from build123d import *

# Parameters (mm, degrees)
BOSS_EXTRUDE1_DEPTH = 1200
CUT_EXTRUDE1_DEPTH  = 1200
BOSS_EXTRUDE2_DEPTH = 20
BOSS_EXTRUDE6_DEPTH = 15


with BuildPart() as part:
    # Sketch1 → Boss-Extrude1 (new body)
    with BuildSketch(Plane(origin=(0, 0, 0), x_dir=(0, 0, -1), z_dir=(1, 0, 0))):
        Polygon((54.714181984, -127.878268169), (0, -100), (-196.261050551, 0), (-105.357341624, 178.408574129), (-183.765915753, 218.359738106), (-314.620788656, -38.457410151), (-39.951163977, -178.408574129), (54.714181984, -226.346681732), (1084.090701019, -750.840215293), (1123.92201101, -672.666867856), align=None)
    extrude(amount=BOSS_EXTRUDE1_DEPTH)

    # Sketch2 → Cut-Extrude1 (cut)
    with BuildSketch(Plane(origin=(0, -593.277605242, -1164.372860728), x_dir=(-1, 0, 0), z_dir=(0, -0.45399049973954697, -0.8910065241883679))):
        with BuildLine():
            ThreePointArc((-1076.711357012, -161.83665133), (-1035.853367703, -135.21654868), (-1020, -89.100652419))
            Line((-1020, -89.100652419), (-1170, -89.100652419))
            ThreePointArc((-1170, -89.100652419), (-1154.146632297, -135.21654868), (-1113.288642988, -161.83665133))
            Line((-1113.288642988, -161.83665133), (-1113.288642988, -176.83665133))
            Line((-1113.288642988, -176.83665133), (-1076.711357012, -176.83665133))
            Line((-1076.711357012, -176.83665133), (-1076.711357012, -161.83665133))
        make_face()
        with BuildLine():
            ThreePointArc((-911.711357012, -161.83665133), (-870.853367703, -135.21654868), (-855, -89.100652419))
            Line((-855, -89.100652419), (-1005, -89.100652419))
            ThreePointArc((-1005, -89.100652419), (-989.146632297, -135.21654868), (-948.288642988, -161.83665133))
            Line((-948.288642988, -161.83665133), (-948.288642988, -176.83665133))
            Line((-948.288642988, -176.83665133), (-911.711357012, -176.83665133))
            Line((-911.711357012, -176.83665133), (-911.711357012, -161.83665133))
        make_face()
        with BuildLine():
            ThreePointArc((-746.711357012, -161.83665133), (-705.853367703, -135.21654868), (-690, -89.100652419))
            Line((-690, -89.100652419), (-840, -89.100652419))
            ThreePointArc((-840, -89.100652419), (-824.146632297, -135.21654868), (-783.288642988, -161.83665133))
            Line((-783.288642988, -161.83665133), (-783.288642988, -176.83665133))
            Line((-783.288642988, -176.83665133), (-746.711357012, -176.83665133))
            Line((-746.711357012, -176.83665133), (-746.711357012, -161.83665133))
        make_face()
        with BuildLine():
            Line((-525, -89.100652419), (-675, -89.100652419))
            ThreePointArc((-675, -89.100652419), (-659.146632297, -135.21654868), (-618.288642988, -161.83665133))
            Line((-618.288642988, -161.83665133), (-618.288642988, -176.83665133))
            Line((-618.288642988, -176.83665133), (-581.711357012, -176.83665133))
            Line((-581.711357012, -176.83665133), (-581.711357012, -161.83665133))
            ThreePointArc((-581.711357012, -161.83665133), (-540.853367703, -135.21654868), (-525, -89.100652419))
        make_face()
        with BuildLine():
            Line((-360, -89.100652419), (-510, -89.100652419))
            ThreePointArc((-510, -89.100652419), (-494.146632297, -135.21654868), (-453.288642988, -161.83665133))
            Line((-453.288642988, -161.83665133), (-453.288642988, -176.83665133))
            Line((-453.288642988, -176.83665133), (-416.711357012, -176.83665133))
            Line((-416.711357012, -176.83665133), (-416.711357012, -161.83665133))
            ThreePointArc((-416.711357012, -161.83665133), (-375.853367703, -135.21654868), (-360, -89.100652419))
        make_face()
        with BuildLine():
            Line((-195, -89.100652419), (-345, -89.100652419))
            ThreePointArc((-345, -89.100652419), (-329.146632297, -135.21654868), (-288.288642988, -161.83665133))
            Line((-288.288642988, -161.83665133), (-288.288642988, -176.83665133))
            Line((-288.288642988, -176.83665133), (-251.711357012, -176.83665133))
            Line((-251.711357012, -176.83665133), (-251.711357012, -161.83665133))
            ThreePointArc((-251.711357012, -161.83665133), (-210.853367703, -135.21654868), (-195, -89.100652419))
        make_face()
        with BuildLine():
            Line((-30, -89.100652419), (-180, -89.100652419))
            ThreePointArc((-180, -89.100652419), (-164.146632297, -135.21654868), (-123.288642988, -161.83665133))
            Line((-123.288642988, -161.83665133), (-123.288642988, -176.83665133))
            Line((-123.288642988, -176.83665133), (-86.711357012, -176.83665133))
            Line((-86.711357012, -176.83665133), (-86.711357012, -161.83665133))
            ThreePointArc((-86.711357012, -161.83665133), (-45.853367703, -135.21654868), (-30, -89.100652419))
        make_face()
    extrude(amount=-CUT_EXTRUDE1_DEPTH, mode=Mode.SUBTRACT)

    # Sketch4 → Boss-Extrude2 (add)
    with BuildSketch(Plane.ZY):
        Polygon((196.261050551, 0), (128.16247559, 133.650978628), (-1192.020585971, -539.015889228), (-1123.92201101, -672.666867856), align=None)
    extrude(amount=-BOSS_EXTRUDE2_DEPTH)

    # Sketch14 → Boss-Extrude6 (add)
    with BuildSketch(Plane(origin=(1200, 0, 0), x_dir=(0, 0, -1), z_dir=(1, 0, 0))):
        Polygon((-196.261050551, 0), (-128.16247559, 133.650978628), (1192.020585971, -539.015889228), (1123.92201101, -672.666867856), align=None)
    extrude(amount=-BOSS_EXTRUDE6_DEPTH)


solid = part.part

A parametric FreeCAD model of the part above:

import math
import FreeCAD as App
import Part
import Sketcher
from FreeCAD import Vector
Q = App.Units.Quantity


def add_polygon(sketch, points):
    """Adds a closed chain of lines whose ends are joined by coincident constraints."""
    first, n = sketch.GeometryCount, len(points)
    for a, b in zip(points, points[1:] + points[:1]):
        sketch.addGeometry(Part.LineSegment(App.Vector(*a, 0), App.Vector(*b, 0)), False)
    for i in range(n):
        sketch.addConstraint(Sketcher.Constraint("Coincident", first + i, 2, first + (i + 1) % n, 1))

doc = App.newDocument("Part")
body = doc.addObject("PartDesign::Body", "Body")

# Sketch on YZ plane
sketch1 = body.newObject("Sketcher::SketchObject", "Sketch")
sketch1.AttachmentSupport = (doc.getObject("YZ_Plane"), [""])
sketch1.MapMode = "FlatFace"
add_polygon(sketch1, [(-128, -55), (0, 196), (178, 105), (218, 184), (-38, 315), (-178, 40), (-226, -55), (-751, -1084), (-673, -1124)])  # lines 0-8
sketch1.addConstraint(Sketcher.Constraint("PointOnObject", 0, 2, -2))
sketch1.addConstraint(Sketcher.Constraint("Perpendicular", 0, 1))
sketch1.addConstraint(Sketcher.Constraint("Perpendicular", 1, 2))
sketch1.addConstraint(Sketcher.Constraint("Perpendicular", 2, 3))
sketch1.addConstraint(Sketcher.Constraint("Perpendicular", 3, 4))
sketch1.addConstraint(Sketcher.Constraint("Parallel", 4, 6))
sketch1.addConstraint(Sketcher.Constraint("Perpendicular", 6, 7))
sketch1.addConstraint(Sketcher.Constraint("Perpendicular", 7, 8))
sketch1.addConstraint(Sketcher.Constraint("Horizontal", 5, 2, 8, 2))
sketch1.addConstraint(Sketcher.Constraint("Angle", 0, Q("63 deg")))
sketch1.addConstraint(Sketcher.Constraint("Distance", 2, Q("88 mm")))
sketch1.addConstraint(Sketcher.Constraint("Distance", 8, Q("1200 mm")))
sketch1.addConstraint(Sketcher.Constraint("Distance", 7, Q("87.735999 mm")))
sketch1.addConstraint(Sketcher.Constraint("DistanceY", 6, 2, -1, 1, Q("1084.090701 mm")))
sketch1.addConstraint(Sketcher.Constraint("Distance", 0, Q("281.676088 mm")))
sketch1.addConstraint(Sketcher.Constraint("DistanceY", -1, 1, 1, 2, Q("105.357342 mm")))
sketch1.addConstraint(Sketcher.Constraint("DistanceX", 3, 2, -1, 1, Q("38.45741 mm")))
sketch1.addConstraint(Sketcher.Constraint("DistanceX", 4, 2, 1, 2, Q("356.817148 mm")))
pad1 = body.newObject("PartDesign::Pad", "Pad")
pad1.Profile = sketch1
pad1.Length = 1200

# Sketch on an angled plane
sketch2 = body.newObject("Sketcher::SketchObject", "Sketch001")
sketch2.Placement = App.Placement(Vector(0, -593.277605, -1164.372861), App.Rotation(Vector(-1, 0, 0), Vector(0, 0.891006524, -0.4539905), Vector(0, -0.4539905, -0.891006524), "ZXY"))
sketch2.addGeometry(Part.ArcOfCircle(Part.Circle(Vector(-1095, -89, 0), Vector(0, 0, 1), 75), math.radians(-76), math.radians(0)), False)
sketch2.addGeometry(Part.LineSegment(Vector(-1020, -89, 0), Vector(-1170, -89, 0)), False)
sketch2.addGeometry(Part.ArcOfCircle(Part.Circle(Vector(-1095, -89, 0), Vector(0, 0, 1), 75), math.radians(180), math.radians(256)), False)
sketch2.addGeometry(Part.LineSegment(Vector(-1113, -162, 0), Vector(-1113, -177, 0)), False)
sketch2.addGeometry(Part.LineSegment(Vector(-1113, -177, 0), Vector(-1077, -177, 0)), False)
sketch2.addGeometry(Part.LineSegment(Vector(-1077, -177, 0), Vector(-1077, -162, 0)), False)
sketch2.addGeometry(Part.ArcOfCircle(Part.Circle(Vector(-930, -89, 0), Vector(0, 0, 1), 75), math.radians(-76), math.radians(0)), False)
sketch2.addGeometry(Part.LineSegment(Vector(-855, -89, 0), Vector(-1005, -89, 0)), False)
sketch2.addGeometry(Part.ArcOfCircle(Part.Circle(Vector(-930, -89, 0), Vector(0, 0, 1), 75), math.radians(180), math.radians(256)), False)
sketch2.addGeometry(Part.LineSegment(Vector(-948, -162, 0), Vector(-948, -177, 0)), False)
sketch2.addGeometry(Part.LineSegment(Vector(-948, -177, 0), Vector(-912, -177, 0)), False)
sketch2.addGeometry(Part.LineSegment(Vector(-912, -177, 0), Vector(-912, -162, 0)), False)
sketch2.addGeometry(Part.ArcOfCircle(Part.Circle(Vector(-765, -89, 0), Vector(0, 0, 1), 75), math.radians(-76), math.radians(0)), False)
sketch2.addGeometry(Part.LineSegment(Vector(-690, -89, 0), Vector(-840, -89, 0)), False)
sketch2.addGeometry(Part.ArcOfCircle(Part.Circle(Vector(-765, -89, 0), Vector(0, 0, 1), 75), math.radians(180), math.radians(256)), False)
sketch2.addGeometry(Part.LineSegment(Vector(-783, -162, 0), Vector(-783, -177, 0)), False)
sketch2.addGeometry(Part.LineSegment(Vector(-783, -177, 0), Vector(-747, -177, 0)), False)
sketch2.addGeometry(Part.LineSegment(Vector(-747, -177, 0), Vector(-747, -162, 0)), False)
sketch2.addGeometry(Part.LineSegment(Vector(-525, -89, 0), Vector(-675, -89, 0)), False)
sketch2.addGeometry(Part.ArcOfCircle(Part.Circle(Vector(-600, -89, 0), Vector(0, 0, 1), 75), math.radians(180), math.radians(256)), False)
sketch2.addGeometry(Part.LineSegment(Vector(-618, -162, 0), Vector(-618, -177, 0)), False)
sketch2.addGeometry(Part.LineSegment(Vector(-618, -177, 0), Vector(-582, -177, 0)), False)
sketch2.addGeometry(Part.LineSegment(Vector(-582, -177, 0), Vector(-582, -162, 0)), False)
sketch2.addGeometry(Part.ArcOfCircle(Part.Circle(Vector(-600, -89, 0), Vector(0, 0, 1), 75), math.radians(-76), math.radians(0)), False)
sketch2.addGeometry(Part.LineSegment(Vector(-360, -89, 0), Vector(-510, -89, 0)), False)
sketch2.addGeometry(Part.ArcOfCircle(Part.Circle(Vector(-435, -89, 0), Vector(0, 0, 1), 75), math.radians(180), math.radians(256)), False)
sketch2.addGeometry(Part.LineSegment(Vector(-453, -162, 0), Vector(-453, -177, 0)), False)
sketch2.addGeometry(Part.LineSegment(Vector(-453, -177, 0), Vector(-417, -177, 0)), False)
sketch2.addGeometry(Part.LineSegment(Vector(-417, -177, 0), Vector(-417, -162, 0)), False)
sketch2.addGeometry(Part.ArcOfCircle(Part.Circle(Vector(-435, -89, 0), Vector(0, 0, 1), 75), math.radians(-76), math.radians(0)), False)
sketch2.addGeometry(Part.LineSegment(Vector(-195, -89, 0), Vector(-345, -89, 0)), False)
sketch2.addGeometry(Part.ArcOfCircle(Part.Circle(Vector(-270, -89, 0), Vector(0, 0, 1), 75), math.radians(180), math.radians(256)), False)
sketch2.addGeometry(Part.LineSegment(Vector(-288, -162, 0), Vector(-288, -177, 0)), False)
sketch2.addGeometry(Part.LineSegment(Vector(-288, -177, 0), Vector(-252, -177, 0)), False)
sketch2.addGeometry(Part.LineSegment(Vector(-252, -177, 0), Vector(-252, -162, 0)), False)
sketch2.addGeometry(Part.ArcOfCircle(Part.Circle(Vector(-270, -89, 0), Vector(0, 0, 1), 75), math.radians(-76), math.radians(0)), False)
sketch2.addGeometry(Part.LineSegment(Vector(-30, -89, 0), Vector(-180, -89, 0)), False)
sketch2.addGeometry(Part.ArcOfCircle(Part.Circle(Vector(-105, -89, 0), Vector(0, 0, 1), 75), math.radians(180), math.radians(256)), False)
sketch2.addGeometry(Part.LineSegment(Vector(-123, -162, 0), Vector(-123, -177, 0)), False)
sketch2.addGeometry(Part.LineSegment(Vector(-123, -177, 0), Vector(-87, -177, 0)), False)
sketch2.addGeometry(Part.LineSegment(Vector(-87, -177, 0), Vector(-87, -162, 0)), False)
sketch2.addGeometry(Part.ArcOfCircle(Part.Circle(Vector(-105, -89, 0), Vector(0, 0, 1), 75), math.radians(-76), math.radians(0)), False)
sketch2.addConstraint(Sketcher.Constraint("Coincident", 0, 2, 1, 1))
sketch2.addConstraint(Sketcher.Constraint("Coincident", 1, 2, 2, 1))
sketch2.addConstraint(Sketcher.Constraint("Coincident", 2, 2, 3, 1))
sketch2.addConstraint(Sketcher.Constraint("Coincident", 3, 2, 4, 1))
sketch2.addConstraint(Sketcher.Constraint("Coincident", 4, 2, 5, 1))
sketch2.addConstraint(Sketcher.Constraint("Coincident", 5, 2, 0, 1))
sketch2.addConstraint(Sketcher.Constraint("Coincident", 6, 2, 7, 1))
sketch2.addConstraint(Sketcher.Constraint("Coincident", 7, 2, 8, 1))
sketch2.addConstraint(Sketcher.Constraint("Coincident", 8, 2, 9, 1))
sketch2.addConstraint(Sketcher.Constraint("Coincident", 9, 2, 10, 1))
sketch2.addConstraint(Sketcher.Constraint("Coincident", 10, 2, 11, 1))
sketch2.addConstraint(Sketcher.Constraint("Coincident", 11, 2, 6, 1))
sketch2.addConstraint(Sketcher.Constraint("Coincident", 12, 2, 13, 1))
sketch2.addConstraint(Sketcher.Constraint("Coincident", 13, 2, 14, 1))
sketch2.addConstraint(Sketcher.Constraint("Coincident", 14, 2, 15, 1))
sketch2.addConstraint(Sketcher.Constraint("Coincident", 15, 2, 16, 1))
sketch2.addConstraint(Sketcher.Constraint("Coincident", 16, 2, 17, 1))
sketch2.addConstraint(Sketcher.Constraint("Coincident", 17, 2, 12, 1))
sketch2.addConstraint(Sketcher.Constraint("Coincident", 18, 2, 19, 1))
sketch2.addConstraint(Sketcher.Constraint("Coincident", 19, 2, 20, 1))
sketch2.addConstraint(Sketcher.Constraint("Coincident", 20, 2, 21, 1))
sketch2.addConstraint(Sketcher.Constraint("Coincident", 21, 2, 22, 1))
sketch2.addConstraint(Sketcher.Constraint("Coincident", 22, 2, 23, 1))
sketch2.addConstraint(Sketcher.Constraint("Coincident", 23, 2, 18, 1))
sketch2.addConstraint(Sketcher.Constraint("Coincident", 24, 2, 25, 1))
sketch2.addConstraint(Sketcher.Constraint("Coincident", 25, 2, 26, 1))
sketch2.addConstraint(Sketcher.Constraint("Coincident", 26, 2, 27, 1))
sketch2.addConstraint(Sketcher.Constraint("Coincident", 27, 2, 28, 1))
sketch2.addConstraint(Sketcher.Constraint("Coincident", 28, 2, 29, 1))
sketch2.addConstraint(Sketcher.Constraint("Coincident", 29, 2, 24, 1))
sketch2.addConstraint(Sketcher.Constraint("Coincident", 30, 2, 31, 1))
sketch2.addConstraint(Sketcher.Constraint("Coincident", 31, 2, 32, 1))
sketch2.addConstraint(Sketcher.Constraint("Coincident", 32, 2, 33, 1))
sketch2.addConstraint(Sketcher.Constraint("Coincident", 33, 2, 34, 1))
sketch2.addConstraint(Sketcher.Constraint("Coincident", 34, 2, 35, 1))
sketch2.addConstraint(Sketcher.Constraint("Coincident", 35, 2, 30, 1))
sketch2.addConstraint(Sketcher.Constraint("Coincident", 36, 2, 37, 1))
sketch2.addConstraint(Sketcher.Constraint("Coincident", 37, 2, 38, 1))
sketch2.addConstraint(Sketcher.Constraint("Coincident", 38, 2, 39, 1))
sketch2.addConstraint(Sketcher.Constraint("Coincident", 39, 2, 40, 1))
sketch2.addConstraint(Sketcher.Constraint("Coincident", 40, 2, 41, 1))
sketch2.addConstraint(Sketcher.Constraint("Coincident", 41, 2, 36, 1))
sketch2.addConstraint(Sketcher.Constraint("Horizontal", 1))
sketch2.addConstraint(Sketcher.Constraint("Vertical", 3))
sketch2.addConstraint(Sketcher.Constraint("Horizontal", 4))
sketch2.addConstraint(Sketcher.Constraint("Vertical", 5))
sketch2.addConstraint(Sketcher.Constraint("Horizontal", 7))
sketch2.addConstraint(Sketcher.Constraint("Vertical", 9))
sketch2.addConstraint(Sketcher.Constraint("Horizontal", 10))
sketch2.addConstraint(Sketcher.Constraint("Vertical", 11))
sketch2.addConstraint(Sketcher.Constraint("Horizontal", 13))
sketch2.addConstraint(Sketcher.Constraint("Vertical", 15))
sketch2.addConstraint(Sketcher.Constraint("Horizontal", 16))
sketch2.addConstraint(Sketcher.Constraint("Vertical", 17))
sketch2.addConstraint(Sketcher.Constraint("Horizontal", 18))
sketch2.addConstraint(Sketcher.Constraint("Vertical", 20))
sketch2.addConstraint(Sketcher.Constraint("Horizontal", 21))
sketch2.addConstraint(Sketcher.Constraint("Vertical", 22))
sketch2.addConstraint(Sketcher.Constraint("Horizontal", 24))
sketch2.addConstraint(Sketcher.Constraint("Vertical", 26))
sketch2.addConstraint(Sketcher.Constraint("Horizontal", 27))
sketch2.addConstraint(Sketcher.Constraint("Vertical", 28))
sketch2.addConstraint(Sketcher.Constraint("Horizontal", 30))
sketch2.addConstraint(Sketcher.Constraint("Vertical", 32))
sketch2.addConstraint(Sketcher.Constraint("Horizontal", 33))
sketch2.addConstraint(Sketcher.Constraint("Vertical", 34))
sketch2.addConstraint(Sketcher.Constraint("Horizontal", 36))
sketch2.addConstraint(Sketcher.Constraint("Vertical", 38))
sketch2.addConstraint(Sketcher.Constraint("Horizontal", 39))
sketch2.addConstraint(Sketcher.Constraint("Vertical", 40))
sketch2.addConstraint(Sketcher.Constraint("Coincident", 2, 3, 0, 3))
sketch2.addConstraint(Sketcher.Constraint("Coincident", 8, 3, 6, 3))
sketch2.addConstraint(Sketcher.Constraint("Coincident", 14, 3, 12, 3))
sketch2.addConstraint(Sketcher.Constraint("Coincident", 23, 3, 19, 3))
sketch2.addConstraint(Sketcher.Constraint("Coincident", 29, 3, 25, 3))
sketch2.addConstraint(Sketcher.Constraint("Coincident", 35, 3, 31, 3))
sketch2.addConstraint(Sketcher.Constraint("Coincident", 41, 3, 37, 3))
sketch2.addConstraint(Sketcher.Constraint("Equal", 0, 2))
sketch2.addConstraint(Sketcher.Constraint("Equal", 2, 6))
sketch2.addConstraint(Sketcher.Constraint("Equal", 6, 8))
sketch2.addConstraint(Sketcher.Constraint("Equal", 8, 12))
sketch2.addConstraint(Sketcher.Constraint("Equal", 12, 14))
sketch2.addConstraint(Sketcher.Constraint("Equal", 14, 19))
sketch2.addConstraint(Sketcher.Constraint("Equal", 19, 23))
sketch2.addConstraint(Sketcher.Constraint("Equal", 23, 25))
sketch2.addConstraint(Sketcher.Constraint("Equal", 25, 29))
sketch2.addConstraint(Sketcher.Constraint("Equal", 29, 31))
sketch2.addConstraint(Sketcher.Constraint("Equal", 31, 35))
sketch2.addConstraint(Sketcher.Constraint("Equal", 35, 37))
sketch2.addConstraint(Sketcher.Constraint("Equal", 37, 41))
sketch2.addConstraint(Sketcher.Constraint("Horizontal", 2, 3, 6, 3))
sketch2.addConstraint(Sketcher.Constraint("Horizontal", 8, 3, 12, 3))
sketch2.addConstraint(Sketcher.Constraint("Horizontal", 14, 3, 19, 3))
sketch2.addConstraint(Sketcher.Constraint("Horizontal", 23, 3, 25, 3))
sketch2.addConstraint(Sketcher.Constraint("Horizontal", 29, 3, 31, 3))
sketch2.addConstraint(Sketcher.Constraint("Horizontal", 35, 3, 37, 3))
sketch2.addConstraint(Sketcher.Constraint("Horizontal", 41, 3, 0, 2))
sketch2.addConstraint(Sketcher.Constraint("Horizontal", 2, 2, 5, 2))
sketch2.addConstraint(Sketcher.Constraint("Horizontal", 1, 2, 6, 2))
sketch2.addConstraint(Sketcher.Constraint("Horizontal", 5, 2, 8, 2))
sketch2.addConstraint(Sketcher.Constraint("Horizontal", 4, 2, 9, 2))
sketch2.addConstraint(Sketcher.Constraint("Horizontal", 8, 2, 11, 2))
sketch2.addConstraint(Sketcher.Constraint("Horizontal", 7, 2, 12, 2))
sketch2.addConstraint(Sketcher.Constraint("Horizontal", 11, 2, 14, 2))
sketch2.addConstraint(Sketcher.Constraint("Horizontal", 10, 2, 15, 2))
sketch2.addConstraint(Sketcher.Constraint("Horizontal", 14, 2, 17, 2))
sketch2.addConstraint(Sketcher.Constraint("Horizontal", 13, 2, 18, 2))
sketch2.addConstraint(Sketcher.Constraint("Horizontal", 17, 2, 19, 2))
sketch2.addConstraint(Sketcher.Constraint("Horizontal", 16, 2, 20, 2))
sketch2.addConstraint(Sketcher.Constraint("Horizontal", 19, 2, 22, 2))
sketch2.addConstraint(Sketcher.Constraint("Horizontal", 23, 2, 24, 2))
sketch2.addConstraint(Sketcher.Constraint("Horizontal", 22, 2, 25, 2))
sketch2.addConstraint(Sketcher.Constraint("Horizontal", 21, 2, 26, 2))
sketch2.addConstraint(Sketcher.Constraint("Horizontal", 25, 2, 28, 2))
sketch2.addConstraint(Sketcher.Constraint("Horizontal", 29, 2, 30, 2))
sketch2.addConstraint(Sketcher.Constraint("Horizontal", 28, 2, 31, 2))
sketch2.addConstraint(Sketcher.Constraint("Horizontal", 27, 2, 32, 2))
sketch2.addConstraint(Sketcher.Constraint("Horizontal", 31, 2, 34, 2))
sketch2.addConstraint(Sketcher.Constraint("Horizontal", 35, 2, 36, 2))
sketch2.addConstraint(Sketcher.Constraint("Horizontal", 34, 2, 37, 2))
sketch2.addConstraint(Sketcher.Constraint("Horizontal", 33, 2, 38, 2))
sketch2.addConstraint(Sketcher.Constraint("Horizontal", 37, 2, 40, 2))
sketch2.addConstraint(Sketcher.Constraint("Radius", 0, Q("75 mm")))
sketch2.addConstraint(Sketcher.Constraint("DistanceY", 3, 2, 3, 1, Q("15 mm")))
sketch2.addConstraint(Sketcher.Constraint("DistanceX", 0, 3, -1, 1, Q("1095 mm")))
sketch2.addConstraint(Sketcher.Constraint("DistanceX", 6, 3, -1, 1, Q("930 mm")))
sketch2.addConstraint(Sketcher.Constraint("DistanceX", 12, 3, -1, 1, Q("765 mm")))
sketch2.addConstraint(Sketcher.Constraint("DistanceX", 19, 3, -1, 1, Q("600 mm")))
sketch2.addConstraint(Sketcher.Constraint("DistanceX", 25, 3, -1, 1, Q("435 mm")))
sketch2.addConstraint(Sketcher.Constraint("DistanceX", 31, 3, -1, 1, Q("270 mm")))
sketch2.addConstraint(Sketcher.Constraint("DistanceX", 37, 3, -1, 1, Q("105 mm")))
sketch2.addConstraint(Sketcher.Constraint("DistanceY", 2, 2, 2, 3, Q("72.735999 mm")))
sketch2.addConstraint(Sketcher.Constraint("DistanceY", 2, 2, -1, 1, Q("161.836651 mm")))
pocket1 = body.newObject("PartDesign::Pocket", "Pocket")
pocket1.Profile = sketch2
pocket1.Length = 1200

# Sketch on YZ plane
sketch3 = body.newObject("Sketcher::SketchObject", "Sketch002")
sketch3.AttachmentSupport = (doc.getObject("YZ_Plane"), [""])
sketch3.MapMode = "FlatFace"
add_polygon(sketch3, [(0, 196), (134, 128), (-539, -1192), (-673, -1124)])  # lines 0-3
sketch3.addConstraint(Sketcher.Constraint("PointOnObject", 3, 2, -2))
sketch3.addConstraint(Sketcher.Constraint("Perpendicular", 0, 1))
sketch3.addConstraint(Sketcher.Constraint("Perpendicular", 1, 2))
sketch3.addConstraint(Sketcher.Constraint("Perpendicular", 2, 3))
sketch3.addConstraint(Sketcher.Constraint("Angle", 0, Q("-27 deg")))
sketch3.addConstraint(Sketcher.Constraint("Distance", 0, Q("150 mm")))
sketch3.addConstraint(Sketcher.Constraint("Distance", 1, Q("1481.676088 mm")))
sketch3.addConstraint(Sketcher.Constraint("DistanceY", 2, 2, -1, 1, Q("1123.922011 mm")))
pad2 = body.newObject("PartDesign::Pad", "Pad001")
pad2.Profile = sketch3
pad2.Length = 20

# Sketch on YZ plane
sketch4 = body.newObject("Sketcher::SketchObject", "Sketch003")
sketch4.AttachmentSupport = (doc.getObject("YZ_Plane"), [""])
sketch4.MapMode = "FlatFace"
sketch4.AttachmentOffset = App.Placement(Vector(0, 0, 1200), App.Rotation())
add_polygon(sketch4, [(134, 128), (0, 196), (-673, -1124), (-539, -1192)])  # lines 0-3
sketch4.addConstraint(Sketcher.Constraint("PointOnObject", 0, 2, -2))
sketch4.addConstraint(Sketcher.Constraint("Perpendicular", 0, 1))
sketch4.addConstraint(Sketcher.Constraint("Perpendicular", 1, 2))
sketch4.addConstraint(Sketcher.Constraint("Perpendicular", 2, 3))
sketch4.addConstraint(Sketcher.Constraint("Angle", 0, Q("153 deg")))
sketch4.addConstraint(Sketcher.Constraint("Distance", 0, Q("150 mm")))
sketch4.addConstraint(Sketcher.Constraint("Distance", 1, Q("1481.676088 mm")))
sketch4.addConstraint(Sketcher.Constraint("DistanceY", -1, 1, 0, 2, Q("196.261051 mm")))
pad3 = body.newObject("PartDesign::Pad", "Pad002")
pad3.Profile = sketch4
pad3.Length = 15
pad3.Reversed = True

doc.recompute()
